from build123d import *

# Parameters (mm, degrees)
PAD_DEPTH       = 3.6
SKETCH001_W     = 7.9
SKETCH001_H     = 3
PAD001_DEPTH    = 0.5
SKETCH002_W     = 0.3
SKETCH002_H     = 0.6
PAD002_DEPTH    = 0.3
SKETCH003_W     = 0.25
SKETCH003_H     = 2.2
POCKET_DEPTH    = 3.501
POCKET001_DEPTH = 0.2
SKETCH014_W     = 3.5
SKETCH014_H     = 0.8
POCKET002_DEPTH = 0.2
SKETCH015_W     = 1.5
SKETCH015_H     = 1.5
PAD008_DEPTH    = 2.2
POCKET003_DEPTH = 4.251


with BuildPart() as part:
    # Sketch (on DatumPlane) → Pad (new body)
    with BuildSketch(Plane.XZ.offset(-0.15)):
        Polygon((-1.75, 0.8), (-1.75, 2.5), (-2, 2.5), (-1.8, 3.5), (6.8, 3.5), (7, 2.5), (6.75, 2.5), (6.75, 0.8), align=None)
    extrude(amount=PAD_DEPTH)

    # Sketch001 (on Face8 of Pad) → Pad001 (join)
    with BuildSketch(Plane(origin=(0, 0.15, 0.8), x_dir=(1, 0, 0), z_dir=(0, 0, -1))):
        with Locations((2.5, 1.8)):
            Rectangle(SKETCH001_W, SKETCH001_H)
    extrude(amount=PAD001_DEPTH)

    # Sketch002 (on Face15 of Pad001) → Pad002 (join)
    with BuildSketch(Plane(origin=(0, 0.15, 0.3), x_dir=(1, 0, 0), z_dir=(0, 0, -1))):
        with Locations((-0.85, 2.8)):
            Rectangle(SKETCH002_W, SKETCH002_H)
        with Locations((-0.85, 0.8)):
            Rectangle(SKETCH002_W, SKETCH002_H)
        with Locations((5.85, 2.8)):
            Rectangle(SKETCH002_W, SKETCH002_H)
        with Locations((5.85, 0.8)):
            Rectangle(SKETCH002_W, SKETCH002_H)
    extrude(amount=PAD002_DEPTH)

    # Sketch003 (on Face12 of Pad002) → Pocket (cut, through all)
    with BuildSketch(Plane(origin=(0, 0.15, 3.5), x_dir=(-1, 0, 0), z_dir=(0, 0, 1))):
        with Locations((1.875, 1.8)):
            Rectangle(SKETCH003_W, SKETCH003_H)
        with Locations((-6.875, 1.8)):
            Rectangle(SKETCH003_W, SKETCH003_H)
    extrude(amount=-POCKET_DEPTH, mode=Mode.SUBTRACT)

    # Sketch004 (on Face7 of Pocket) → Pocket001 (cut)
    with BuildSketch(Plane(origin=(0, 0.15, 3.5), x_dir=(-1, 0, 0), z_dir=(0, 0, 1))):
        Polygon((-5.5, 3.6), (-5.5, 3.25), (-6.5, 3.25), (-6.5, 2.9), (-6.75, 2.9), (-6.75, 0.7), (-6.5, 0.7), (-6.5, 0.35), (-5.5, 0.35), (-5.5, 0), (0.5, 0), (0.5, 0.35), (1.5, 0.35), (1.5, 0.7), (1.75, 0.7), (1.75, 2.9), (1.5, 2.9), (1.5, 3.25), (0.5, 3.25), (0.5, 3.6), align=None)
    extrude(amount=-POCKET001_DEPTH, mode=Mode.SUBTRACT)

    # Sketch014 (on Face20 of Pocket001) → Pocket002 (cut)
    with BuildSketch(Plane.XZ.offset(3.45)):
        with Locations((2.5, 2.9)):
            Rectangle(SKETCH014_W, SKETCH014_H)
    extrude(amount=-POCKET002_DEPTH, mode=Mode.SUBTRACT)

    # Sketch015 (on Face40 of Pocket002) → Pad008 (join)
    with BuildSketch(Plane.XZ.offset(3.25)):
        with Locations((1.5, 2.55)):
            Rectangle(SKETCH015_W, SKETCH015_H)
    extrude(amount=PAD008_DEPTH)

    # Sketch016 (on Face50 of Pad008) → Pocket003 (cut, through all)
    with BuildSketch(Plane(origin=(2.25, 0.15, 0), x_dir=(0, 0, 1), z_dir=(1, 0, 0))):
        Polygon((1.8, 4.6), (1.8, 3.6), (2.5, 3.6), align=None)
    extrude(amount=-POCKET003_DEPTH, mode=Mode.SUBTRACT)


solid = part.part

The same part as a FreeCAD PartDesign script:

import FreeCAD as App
import Part
import Sketcher
from FreeCAD import Vector

doc = App.newDocument("Part")
body = doc.addObject("PartDesign::Body", "Body")

# Sketch on XZ plane
sketch1 = body.newObject("Sketcher::SketchObject", "Sketch")
sketch1.AttachmentSupport = (doc.getObject("XZ_Plane"), [""])
sketch1.MapMode = "FlatFace"
sketch1.AttachmentOffset = App.Placement(Vector(0, 0, -0.15), App.Rotation())
sketch1.addGeometry([
    Part.LineSegment(Vector(-1.75, 2.5, 0), Vector(-1.75, 0.8, 0)),  # 0
    Part.LineSegment(Vector(-1.75, 0.8, 0), Vector(6.75, 0.8, 0)),  # 1
    Part.LineSegment(Vector(6.75, 0.8, 0), Vector(6.75, 2.5, 0)),  # 2
    Part.LineSegment(Vector(6.75, 2.5, 0), Vector(7, 2.5, 0)),  # 3
    Part.LineSegment(Vector(7, 2.5, 0), Vector(6.8, 3.5, 0)),  # 4
    Part.LineSegment(Vector(6.8, 3.5, 0), Vector(-1.8, 3.5, 0)),  # 5
    Part.LineSegment(Vector(-1.8, 3.5, 0), Vector(-2, 2.5, 0)),  # 6
    Part.LineSegment(Vector(-2, 2.5, 0), Vector(-1.75, 2.5, 0)),  # 7
], False)
sketch1.addConstraint([
    Sketcher.Constraint("Coincident", 0, 2, 1, 1),
    Sketcher.Constraint("Coincident", 1, 2, 2, 1),
    Sketcher.Constraint("Coincident", 2, 2, 3, 1),
    Sketcher.Constraint("Coincident", 3, 2, 4, 1),
    Sketcher.Constraint("Coincident", 4, 2, 5, 1),
    Sketcher.Constraint("Coincident", 5, 2, 6, 1),
    Sketcher.Constraint("Coincident", 6, 2, 7, 1),
    Sketcher.Constraint("Coincident", 7, 2, 0, 1),
    Sketcher.Constraint("Vertical", 0),
    Sketcher.Constraint("Horizontal", 1),
    Sketcher.Constraint("Vertical", 2),
    Sketcher.Constraint("Horizontal", 3),
    Sketcher.Constraint("Horizontal", 5),
    Sketcher.Constraint("Horizontal", 7),
    Sketcher.Constraint("Horizontal", 3, 2, 6, 2),
    Sketcher.Constraint("Equal", 3, 7),
    Sketcher.Constraint("Equal", 4, 6),
    Sketcher.Constraint("DistanceX", 1, 1, 1, 2, 8.5),
    Sketcher.Constraint("DistanceX", 5, 2, 5, 1, 8.6),
    Sketcher.Constraint("DistanceY", 0, 2, 0, 1, 1.7),
    Sketcher.Constraint("DistanceX", -1, 1, 3, 2, 7.0),
    Sketcher.Constraint("DistanceX", 6, 2, -1, 1, 2.0),
    Sketcher.Constraint("DistanceY", 2, 2, 4, 2, 1.0),
    Sketcher.Constraint("DistanceY", -1, 1, 0, 2, 0.8),
])
pad1 = body.newObject("PartDesign::Pad", "Pad")
pad1.Profile = sketch1
pad1.Length = 3.6

# Sketch on XY plane
sketch2 = body.newObject("Sketcher::SketchObject", "Sketch001")
sketch2.AttachmentSupport = (doc.getObject("XY_Plane"), [""])
sketch2.MapMode = "FlatFace"
sketch2.AttachmentOffset = App.Placement(Vector(0, 0, 0.8), App.Rotation())
sketch2.addGeometry([
    Part.LineSegment(Vector(-1.45, -3.15, 0), Vector(-1.45, -0.15, 0)),
    Part.LineSegment(Vector(-1.45, -0.15, 0), Vector(6.45, -0.15, 0)),
    Part.LineSegment(Vector(6.45, -0.15, 0), Vector(6.45, -3.15, 0)),
    Part.LineSegment(Vector(6.45, -3.15, 0), Vector(-1.45, -3.15, 0)),
], False)
sketch2.addConstraint([
    Sketcher.Constraint("Coincident", 0, 2, 1, 1),
    Sketcher.Constraint("Coincident", 1, 2, 2, 1),
    Sketcher.Constraint("Coincident", 2, 2, 3, 1),
    Sketcher.Constraint("Coincident", 3, 2, 0, 1),
    Sketcher.Constraint("Vertical", 0),
    Sketcher.Constraint("Horizontal", 1),
    Sketcher.Constraint("Vertical", 2),
    Sketcher.Constraint("Horizontal", 3),
    Sketcher.Constraint("DistanceY", 0, 1, 0, 2, 3.0),
    Sketcher.Constraint("DistanceX", 1, 1, 1, 2, 7.9),
    Sketcher.Constraint("DistanceX", 0, 2, -1, 1, 1.45),
    Sketcher.Constraint("DistanceY", 0, 2, -1, 1, 0.15),
])
pad2 = body.newObject("PartDesign::Pad", "Pad001")
pad2.Profile = sketch2
pad2.Length = 0.5
pad2.Reversed = True

# Sketch on XY plane
sketch3 = body.newObject("Sketcher::SketchObject", "Sketch002")
sketch3.AttachmentSupport = (doc.getObject("XY_Plane"), [""])
sketch3.MapMode = "FlatFace"
sketch3.AttachmentOffset = App.Placement(Vector(0, 0, 0.3), App.Rotation())
sketch3.addGeometry([
    Part.LineSegment(Vector(-1, -2.95, 0), Vector(-1, -2.35, 0)),  # 0
    Part.LineSegment(Vector(-1, -2.35, 0), Vector(-0.7, -2.35, 0)),  # 1
    Part.LineSegment(Vector(-0.7, -2.35, 0), Vector(-0.7, -2.95, 0)),  # 2
    Part.LineSegment(Vector(-0.7, -2.95, 0), Vector(-1, -2.95, 0)),  # 3
    Part.LineSegment(Vector(-1, -0.95, 0), Vector(-1, -0.35, 0)),  # 4
    Part.LineSegment(Vector(-1, -0.35, 0), Vector(-0.7, -0.35, 0)),  # 5
    Part.LineSegment(Vector(-0.7, -0.35, 0), Vector(-0.7, -0.95, 0)),  # 6
    Part.LineSegment(Vector(-0.7, -0.95, 0), Vector(-1, -0.95, 0)),  # 7
    Part.LineSegment(Vector(5.7, -2.95, 0), Vector(5.7, -2.35, 0)),  # 8
    Part.LineSegment(Vector(5.7, -2.35, 0), Vector(6, -2.35, 0)),  # 9
    Part.LineSegment(Vector(6, -2.35, 0), Vector(6, -2.95, 0)),  # 10
    Part.LineSegment(Vector(6, -2.95, 0), Vector(5.7, -2.95, 0)),  # 11
    Part.LineSegment(Vector(5.7, -0.95, 0), Vector(5.7, -0.35, 0)),  # 12
    Part.LineSegment(Vector(5.7, -0.35, 0), Vector(6, -0.35, 0)),  # 13
    Part.LineSegment(Vector(6, -0.35, 0), Vector(6, -0.95, 0)),  # 14
    Part.LineSegment(Vector(6, -0.95, 0), Vector(5.7, -0.95, 0)),  # 15
], False)
sketch3.addConstraint([
    Sketcher.Constraint("Coincident", 0, 2, 1, 1),
    Sketcher.Constraint("Coincident", 1, 2, 2, 1),
    Sketcher.Constraint("Coincident", 2, 2, 3, 1),
    Sketcher.Constraint("Coincident", 3, 2, 0, 1),
    Sketcher.Constraint("Coincident", 4, 2, 5, 1),
    Sketcher.Constraint("Coincident", 5, 2, 6, 1),
    Sketcher.Constraint("Coincident", 6, 2, 7, 1),
    Sketcher.Constraint("Coincident", 7, 2, 4, 1),
    Sketcher.Constraint("Coincident", 8, 2, 9, 1),
    Sketcher.Constraint("Coincident", 9, 2, 10, 1),
    Sketcher.Constraint("Coincident", 10, 2, 11, 1),
    Sketcher.Constraint("Coincident", 11, 2, 8, 1),
    Sketcher.Constraint("Coincident", 12, 2, 13, 1),
    Sketcher.Constraint("Coincident", 13, 2, 14, 1),
    Sketcher.Constraint("Coincident", 14, 2, 15, 1),
    Sketcher.Constraint("Coincident", 15, 2, 12, 1),
    Sketcher.Constraint("Vertical", 0),
    Sketcher.Constraint("Horizontal", 1),
    Sketcher.Constraint("Vertical", 2),
    Sketcher.Constraint("Horizontal", 3),
    Sketcher.Constraint("Vertical", 4),
    Sketcher.Constraint("Horizontal", 5),
    Sketcher.Constraint("Vertical", 6),
    Sketcher.Constraint("Horizontal", 7),
    Sketcher.Constraint("Vertical", 8),
    Sketcher.Constraint("Horizontal", 9),
    Sketcher.Constraint("Vertical", 10),
    Sketcher.Constraint("Horizontal", 11),
    Sketcher.Constraint("Vertical", 12),
    Sketcher.Constraint("Horizontal", 13),
    Sketcher.Constraint("Vertical", 14),
    Sketcher.Constraint("Horizontal", 15),
    Sketcher.Constraint("Horizontal", 1, 2, 8, 2),
    Sketcher.Constraint("Horizontal", 3, 2, 10, 2),
    Sketcher.Constraint("Horizontal", 5, 2, 12, 2),
    Sketcher.Constraint("Horizontal", 7, 2, 14, 2),
    Sketcher.Constraint("Vertical", 3, 2, 4, 2),
    Sketcher.Constraint("Vertical", 2, 2, 5, 2),
    Sketcher.Constraint("Vertical", 11, 2, 12, 2),
    Sketcher.Constraint("Vertical", 10, 2, 13, 2),
    Sketcher.Constraint("Equal", 7, 9),
    Sketcher.Constraint("Equal", 2, 4),
    Sketcher.Constraint("DistanceX", 1, 1, 1, 2, 0.3),
    Sketcher.Constraint("DistanceY", 0, 1, 0, 2, 0.6),
    Sketcher.Constraint("DistanceX", 0, 2, -1, 1, 1.0),
    Sketcher.Constraint("DistanceX", -1, 1, 9, 2, 6.0),
    Sketcher.Constraint("DistanceY", 0, 2, 4, 2, 2.0),
    Sketcher.Constraint("DistanceY", 0, 2, -1, 1, 2.35),
])
pad3 = body.newObject("PartDesign::Pad", "Pad002")
pad3.Profile = sketch3
pad3.Length = 0.3
pad3.Reversed = True

# Sketch on XY plane
sketch4 = body.newObject("Sketcher::SketchObject", "Sketch003")
sketch4.AttachmentSupport = (doc.getObject("XY_Plane"), [""])
sketch4.MapMode = "FlatFace"
sketch4.AttachmentOffset = App.Placement(Vector(0, 0, 3.5), App.Rotation())
sketch4.addGeometry([
    Part.LineSegment(Vector(-1.75, -2.75, 0), Vector(-1.75, -0.55, 0)),  # 0
    Part.LineSegment(Vector(-1.75, -0.55, 0), Vector(-2, -0.55, 0)),  # 1
    Part.LineSegment(Vector(-2, -0.55, 0), Vector(-2, -2.75, 0)),  # 2
    Part.LineSegment(Vector(-2, -2.75, 0), Vector(-1.75, -2.75, 0)),  # 3
    Part.LineSegment(Vector(7, -2.75, 0), Vector(7, -0.55, 0)),  # 4
    Part.LineSegment(Vector(7, -0.55, 0), Vector(6.75, -0.55, 0)),  # 5
    Part.LineSegment(Vector(6.75, -0.55, 0), Vector(6.75, -2.75, 0)),  # 6
    Part.LineSegment(Vector(6.75, -2.75, 0), Vector(7, -2.75, 0)),  # 7
], False)
sketch4.addConstraint([
    Sketcher.Constraint("Coincident", 0, 2, 1, 1),
    Sketcher.Constraint("Coincident", 1, 2, 2, 1),
    Sketcher.Constraint("Coincident", 2, 2, 3, 1),
    Sketcher.Constraint("Coincident", 3, 2, 0, 1),
    Sketcher.Constraint("Coincident", 4, 2, 5, 1),
    Sketcher.Constraint("Coincident", 5, 2, 6, 1),
    Sketcher.Constraint("Coincident", 6, 2, 7, 1),
    Sketcher.Constraint("Coincident", 7, 2, 4, 1),
    Sketcher.Constraint("Vertical", 0),
    Sketcher.Constraint("Horizontal", 1),
    Sketcher.Constraint("Vertical", 2),
    Sketcher.Constraint("Horizontal", 3),
    Sketcher.Constraint("Vertical", 4),
    Sketcher.Constraint("Horizontal", 5),
    Sketcher.Constraint("Vertical", 6),
    Sketcher.Constraint("Horizontal", 7),
    Sketcher.Constraint("Horizontal", 1, 2, 4, 2),
    Sketcher.Constraint("Horizontal", 3, 2, 6, 2),
    Sketcher.Constraint("Equal", 3, 5),
    Sketcher.Constraint("DistanceY", 0, 1, 0, 2, 2.2),
    Sketcher.Constraint("DistanceX", 1, 2, -1, 1, 2.0),
    Sketcher.Constraint("DistanceX", -1, 1, 4, 2, 7.0),
    Sketcher.Constraint("DistanceX", 1, 2, 1, 1, 0.25),
    Sketcher.Constraint("DistanceY", 0, 2, -1, 1, 0.55),
])
pocket1 = body.newObject("PartDesign::Pocket", "Pocket")
pocket1.Profile = sketch4
pocket1.Type = "ThroughAll"

# Sketch on XY plane
sketch5 = body.newObject("Sketcher::SketchObject", "Sketch004")
sketch5.AttachmentSupport = (doc.getObject("XY_Plane"), [""])
sketch5.MapMode = "FlatFace"
sketch5.AttachmentOffset = App.Placement(Vector(0, 0, 3.5), App.Rotation())
sketch5.addGeometry([
    Part.LineSegment(Vector(5.5, -3.45, 0), Vector(5.5, -3.1, 0)),  # 0
    Part.LineSegment(Vector(5.5, -3.1, 0), Vector(6.5, -3.1, 0)),  # 1
    Part.LineSegment(Vector(6.5, -3.1, 0), Vector(6.5, -2.75, 0)),  # 2
    Part.LineSegment(Vector(6.5, -2.75, 0), Vector(6.75, -2.75, 0)),  # 3
    Part.LineSegment(Vector(6.75, -2.75, 0), Vector(6.75, -0.55, 0)),  # 4
    Part.LineSegment(Vector(6.75, -0.55, 0), Vector(6.5, -0.55, 0)),  # 5
    Part.LineSegment(Vector(6.5, -0.55, 0), Vector(6.5, -0.2, 0)),  # 6
    Part.LineSegment(Vector(6.5, -0.2, 0), Vector(5.5, -0.2, 0)),  # 7
    Part.LineSegment(Vector(5.5, -0.2, 0), Vector(5.5, 0.15, 0)),  # 8
    Part.LineSegment(Vector(5.5, 0.15, 0), Vector(-0.5, 0.15, 0)),  # 9
    Part.LineSegment(Vector(-0.5, 0.15, 0), Vector(-0.5, -0.2, 0)),  # 10
    Part.LineSegment(Vector(-0.5, -0.2, 0), Vector(-1.5, -0.2, 0)),  # 11
    Part.LineSegment(Vector(-1.5, -0.2, 0), Vector(-1.5, -0.55, 0)),  # 12
    Part.LineSegment(Vector(-1.5, -0.55, 0), Vector(-1.75, -0.55, 0)),  # 13
    Part.LineSegment(Vector(-1.75, -0.55, 0), Vector(-1.75, -2.75, 0)),  # 14
    Part.LineSegment(Vector(-1.75, -2.75, 0), Vector(-1.5, -2.75, 0)),  # 15
    Part.LineSegment(Vector(-1.5, -2.75, 0), Vector(-1.5, -3.1, 0)),  # 16
    Part.LineSegment(Vector(-1.5, -3.1, 0), Vector(-0.5, -3.1, 0)),  # 17
    Part.LineSegment(Vector(-0.5, -3.1, 0), Vector(-0.5, -3.45, 0)),  # 18
    Part.LineSegment(Vector(-0.5, -3.45, 0), Vector(5.5, -3.45, 0)),  # 19
], False)
sketch5.addConstraint([
    Sketcher.Constraint("Coincident", 0, 2, 1, 1),
    Sketcher.Constraint("Coincident", 1, 2, 2, 1),
    Sketcher.Constraint("Coincident", 2, 2, 3, 1),
    Sketcher.Constraint("Coincident", 3, 2, 4, 1),
    Sketcher.Constraint("Coincident", 4, 2, 5, 1),
    Sketcher.Constraint("Coincident", 5, 2, 6, 1),
    Sketcher.Constraint("Coincident", 6, 2, 7, 1),
    Sketcher.Constraint("Coincident", 7, 2, 8, 1),
    Sketcher.Constraint("Coincident", 8, 2, 9, 1),
    Sketcher.Constraint("Coincident", 9, 2, 10, 1),
    Sketcher.Constraint("Coincident", 10, 2, 11, 1),
    Sketcher.Constraint("Coincident", 11, 2, 12, 1),
    Sketcher.Constraint("Coincident", 12, 2, 13, 1),
    Sketcher.Constraint("Coincident", 13, 2, 14, 1),
    Sketcher.Constraint("Coincident", 14, 2, 15, 1),
    Sketcher.Constraint("Coincident", 15, 2, 16, 1),
    Sketcher.Constraint("Coincident", 16, 2, 17, 1),
    Sketcher.Constraint("Coincident", 17, 2, 18, 1),
    Sketcher.Constraint("Coincident", 18, 2, 19, 1),
    Sketcher.Constraint("Coincident", 19, 2, 0, 1),
    Sketcher.Constraint("Vertical", 0),
    Sketcher.Constraint("Horizontal", 1),
    Sketcher.Constraint("Vertical", 2),
    Sketcher.Constraint("Horizontal", 3),
    Sketcher.Constraint("Vertical", 4),
    Sketcher.Constraint("Horizontal", 5),
    Sketcher.Constraint("Vertical", 6),
    Sketcher.Constraint("Horizontal", 7),
    Sketcher.Constraint("Vertical", 8),
    Sketcher.Constraint("Horizontal", 9),
    Sketcher.Constraint("Vertical", 10),
    Sketcher.Constraint("Horizontal", 11),
    Sketcher.Constraint("Vertical", 12),
    Sketcher.Constraint("Horizontal", 13),
    Sketcher.Constraint("Vertical", 14),
    Sketcher.Constraint("Horizontal", 15),
    Sketcher.Constraint("Vertical", 16),
    Sketcher.Constraint("Horizontal", 17),
    Sketcher.Constraint("Vertical", 18),
    Sketcher.Constraint("Horizontal", 19),
    Sketcher.Constraint("Horizontal", 7, 2, 10, 2),
    Sketcher.Constraint("Horizontal", 5, 2, 12, 2),
    Sketcher.Constraint("Horizontal", 3, 2, 14, 2),
    Sketcher.Constraint("Horizontal", 1, 2, 16, 2),
    Sketcher.Constraint("Vertical", 2, 2, 5, 2),
    Sketcher.Constraint("Vertical", 0, 2, 7, 2),
    Sketcher.Constraint("Vertical", 12, 2, 15, 2),
    Sketcher.Constraint("Vertical", 10, 2, 17, 2),
    Sketcher.Constraint("Equal", 7, 11),
    Sketcher.Constraint("Equal", 5, 13),
    Sketcher.Constraint("Equal", 0, 2),
    Sketcher.Constraint("Equal", 2, 6),
    Sketcher.Constraint("Equal", 6, 8),
    Sketcher.Constraint("DistanceX", 1, 1, 1, 2, 1.0),
    Sketcher.Constraint("DistanceX", 9, 2, 9, 1, 6.0),
    Sketcher.Constraint("DistanceY", 4, 1, 4, 2, 2.2),
    Sketcher.Constraint("DistanceX", 3, 1, 3, 2, 0.25),
    Sketcher.Constraint("DistanceY", 0, 1, 0, 2, 0.35),
    Sketcher.Constraint("DistanceX", -1, 1, 0, 2, 5.5),
    Sketcher.Constraint("DistanceY", 0, 2, -1, 1, 3.1),
])
pocket2 = body.newObject("PartDesign::Pocket", "Pocket001")
pocket2.Profile = sketch5
pocket2.Length = 0.2

# Sketch on XZ plane
sketch6 = body.newObject("Sketcher::SketchObject", "Sketch005")
sketch6.AttachmentSupport = (doc.getObject("XZ_Plane"), [""])
sketch6.MapMode = "FlatFace"
sketch6.AttachmentOffset = App.Placement(Vector(0, 0, 3.45), App.Rotation())
sketch6.addGeometry([
    Part.LineSegment(Vector(0.75, 3.3, 0), Vector(0.75, 2.5, 0)),
    Part.LineSegment(Vector(0.75, 2.5, 0), Vector(4.25, 2.5, 0)),
    Part.LineSegment(Vector(4.25, 2.5, 0), Vector(4.25, 3.3, 0)),
    Part.LineSegment(Vector(4.25, 3.3, 0), Vector(0.75, 3.3, 0)),
], False)
sketch6.addConstraint([
    Sketcher.Constraint("Coincident", 0, 2, 1, 1),
    Sketcher.Constraint("Coincident", 1, 2, 2, 1),
    Sketcher.Constraint("Coincident", 2, 2, 3, 1),
    Sketcher.Constraint("Coincident", 3, 2, 0, 1),
    Sketcher.Constraint("Vertical", 0),
    Sketcher.Constraint("Horizontal", 1),
    Sketcher.Constraint("Vertical", 2),
    Sketcher.Constraint("Horizontal", 3),
    Sketcher.Constraint("DistanceX", 1, 1, 1, 2, 3.5),
    Sketcher.Constraint("DistanceY", 0, 2, 0, 1, 0.8),
    Sketcher.Constraint("DistanceY", -1, 1, 0, 2, 2.5),
    Sketcher.Constraint("DistanceX", -1, 1, 0, 2, 0.75),
])
pocket3 = body.newObject("PartDesign::Pocket", "Pocket002")
pocket3.Profile = sketch6
pocket3.Length = 0.2

# Sketch on XZ plane
sketch7 = body.newObject("Sketcher::SketchObject", "Sketch006")
sketch7.AttachmentSupport = (doc.getObject("XZ_Plane"), [""])
sketch7.MapMode = "FlatFace"
sketch7.AttachmentOffset = App.Placement(Vector(0, 0, 3.25), App.Rotation())
sketch7.addGeometry([
    Part.LineSegment(Vector(0.75, 3.3, 0), Vector(0.75, 1.8, 0)),
    Part.LineSegment(Vector(0.75, 1.8, 0), Vector(2.25, 1.8, 0)),
    Part.LineSegment(Vector(2.25, 1.8, 0), Vector(2.25, 3.3, 0)),
    Part.LineSegment(Vector(2.25, 3.3, 0), Vector(0.75, 3.3, 0)),
], False)
sketch7.addConstraint([
    Sketcher.Constraint("Coincident", 0, 2, 1, 1),
    Sketcher.Constraint("Coincident", 1, 2, 2, 1),
    Sketcher.Constraint("Coincident", 2, 2, 3, 1),
    Sketcher.Constraint("Coincident", 3, 2, 0, 1),
    Sketcher.Constraint("Vertical", 0),
    Sketcher.Constraint("Horizontal", 1),
    Sketcher.Constraint("Vertical", 2),
    Sketcher.Constraint("Horizontal", 3),
    Sketcher.Constraint("Equal", 3, 0),
    Sketcher.Constraint("DistanceX", 1, 1, 1, 2, 1.5),
    Sketcher.Constraint("DistanceY", -1, 1, 0, 2, 1.8),
    Sketcher.Constraint("DistanceX", -1, 1, 0, 2, 0.75),
])
pad4 = body.newObject("PartDesign::Pad", "Pad003")
pad4.Profile = sketch7
pad4.Length = 2.2

# Sketch on YZ plane
sketch8 = body.newObject("Sketcher::SketchObject", "Sketch007")
sketch8.AttachmentSupport = (doc.getObject("YZ_Plane"), [""])
sketch8.MapMode = "FlatFace"
sketch8.AttachmentOffset = App.Placement(Vector(0, 0, 2.25), App.Rotation())
sketch8.addGeometry([
    Part.LineSegment(Vector(-4.45, 1.8, 0), Vector(-3.45, 1.8, 0)),
    Part.LineSegment(Vector(-3.45, 1.8, 0), Vector(-3.45, 2.5, 0)),
    Part.LineSegment(Vector(-3.45, 2.5, 0), Vector(-4.45, 1.8, 0)),
], False)
sketch8.addConstraint([
    Sketcher.Constraint("Coincident", 0, 2, 1, 1),
    Sketcher.Constraint("Coincident", 1, 2, 2, 1),
    Sketcher.Constraint("Coincident", 2, 2, 0, 1),
    Sketcher.Constraint("Horizontal", 0),
    Sketcher.Constraint("Vertical", 1),
    Sketcher.Constraint("DistanceX", 0, 1, 0, 2, 1.0),
    Sketcher.Constraint("DistanceY", 1, 1, 1, 2, 0.7),
    Sketcher.Constraint("DistanceY", -1, 1, 0, 2, 1.8),
    Sketcher.Constraint("DistanceX", 0, 2, -1, 1, 3.45),
])
pocket4 = body.newObject("PartDesign::Pocket", "Pocket003")
pocket4.Profile = sketch8
pocket4.Type = "ThroughAll"

doc.recompute()
